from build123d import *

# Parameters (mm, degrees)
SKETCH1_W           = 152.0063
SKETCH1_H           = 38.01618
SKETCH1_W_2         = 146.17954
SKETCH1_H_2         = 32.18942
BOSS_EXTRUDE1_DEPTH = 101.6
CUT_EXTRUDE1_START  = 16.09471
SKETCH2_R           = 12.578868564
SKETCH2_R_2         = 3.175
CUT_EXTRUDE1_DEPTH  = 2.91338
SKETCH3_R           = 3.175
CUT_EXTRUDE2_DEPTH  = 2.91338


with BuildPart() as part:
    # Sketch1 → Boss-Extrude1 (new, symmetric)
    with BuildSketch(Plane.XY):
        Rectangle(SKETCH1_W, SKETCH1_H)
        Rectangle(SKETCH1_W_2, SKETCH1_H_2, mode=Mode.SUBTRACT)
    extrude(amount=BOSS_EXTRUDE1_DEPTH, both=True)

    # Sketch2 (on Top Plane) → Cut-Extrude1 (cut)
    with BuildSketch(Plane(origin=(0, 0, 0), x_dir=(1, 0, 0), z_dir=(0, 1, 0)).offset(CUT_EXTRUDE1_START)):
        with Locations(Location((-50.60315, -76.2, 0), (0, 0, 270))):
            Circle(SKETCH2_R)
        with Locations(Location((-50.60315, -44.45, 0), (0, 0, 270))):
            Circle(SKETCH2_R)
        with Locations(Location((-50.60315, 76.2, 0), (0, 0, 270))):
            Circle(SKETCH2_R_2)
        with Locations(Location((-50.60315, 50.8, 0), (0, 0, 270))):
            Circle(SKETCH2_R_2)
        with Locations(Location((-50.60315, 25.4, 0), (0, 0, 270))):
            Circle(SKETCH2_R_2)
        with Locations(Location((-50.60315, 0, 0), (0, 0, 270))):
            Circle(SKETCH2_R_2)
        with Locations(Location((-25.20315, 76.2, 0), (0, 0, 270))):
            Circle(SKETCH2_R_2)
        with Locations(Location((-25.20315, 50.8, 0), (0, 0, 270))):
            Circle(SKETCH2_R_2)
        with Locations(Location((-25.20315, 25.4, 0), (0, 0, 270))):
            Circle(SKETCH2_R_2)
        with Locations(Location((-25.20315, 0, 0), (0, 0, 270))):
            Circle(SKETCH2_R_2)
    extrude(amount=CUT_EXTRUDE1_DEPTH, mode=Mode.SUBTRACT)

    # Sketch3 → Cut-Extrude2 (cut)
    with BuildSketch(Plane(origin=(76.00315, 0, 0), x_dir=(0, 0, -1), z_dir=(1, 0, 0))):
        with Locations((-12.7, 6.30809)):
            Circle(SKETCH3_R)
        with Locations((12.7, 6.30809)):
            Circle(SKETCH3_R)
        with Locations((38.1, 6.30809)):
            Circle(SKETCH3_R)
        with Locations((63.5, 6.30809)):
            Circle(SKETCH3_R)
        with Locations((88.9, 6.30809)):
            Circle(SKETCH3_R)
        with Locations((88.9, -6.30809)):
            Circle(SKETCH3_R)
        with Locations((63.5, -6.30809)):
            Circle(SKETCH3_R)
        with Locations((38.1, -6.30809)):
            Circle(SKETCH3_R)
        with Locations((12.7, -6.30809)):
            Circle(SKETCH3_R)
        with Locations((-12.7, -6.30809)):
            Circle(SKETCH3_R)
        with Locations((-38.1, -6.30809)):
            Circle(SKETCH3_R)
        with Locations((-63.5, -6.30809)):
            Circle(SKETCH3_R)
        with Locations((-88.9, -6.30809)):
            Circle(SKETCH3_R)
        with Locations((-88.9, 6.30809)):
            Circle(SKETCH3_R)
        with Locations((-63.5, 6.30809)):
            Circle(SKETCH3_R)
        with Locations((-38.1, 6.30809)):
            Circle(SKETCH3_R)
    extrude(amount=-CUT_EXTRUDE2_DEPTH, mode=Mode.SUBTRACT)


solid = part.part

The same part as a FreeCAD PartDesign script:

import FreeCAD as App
import Part
import Sketcher
Q = App.Units.Quantity


def add_polygon(sketch, points):
    """Adds a closed chain of lines whose ends are joined by coincident constraints."""
    first, n = sketch.GeometryCount, len(points)
    for a, b in zip(points, points[1:] + points[:1]):
        sketch.addGeometry(Part.LineSegment(App.Vector(*a, 0), App.Vector(*b, 0)), False)
    for i in range(n):
        sketch.addConstraint(Sketcher.Constraint("Coincident", first + i, 2, first + (i + 1) % n, 1))

doc = App.newDocument("Part")
body = doc.addObject("PartDesign::Body", "Body")

# Sketch on XY plane
sketch1 = body.newObject("Sketcher::SketchObject", "Sketch")
sketch1.AttachmentSupport = (doc.getObject("XY_Plane"), [""])
sketch1.MapMode = "FlatFace"
add_polygon(sketch1, [(-76.00315, 19.00809), (-76.00315, -19.00809), (76.00315, -19.00809), (76.00315, 19.00809)])  # lines 0-3
add_polygon(sketch1, [(73.08977, -16.09471), (-73.08977, -16.09471), (-73.08977, 16.09471), (73.08977, 16.09471)])  # lines 4-7
sketch1.addConstraint([
    Sketcher.Constraint("Vertical", 0),
    Sketcher.Constraint("Horizontal", 1),
    Sketcher.Constraint("Vertical", 2),
    Sketcher.Constraint("Horizontal", 3),
    Sketcher.Constraint("Horizontal", 4),
    Sketcher.Constraint("Vertical", 5),
    Sketcher.Constraint("Horizontal", 6),
    Sketcher.Constraint("Vertical", 7),
    Sketcher.Constraint("Symmetric", 0, 2, 2, 2, -1, 1),
    Sketcher.Constraint("Symmetric", 4, 2, 6, 2, -1, 1),
    Sketcher.Constraint("DistanceX", 1, 1, 1, 2, Q("5.9845 in")),
    Sketcher.Constraint("DistanceX", 4, 2, 4, 1, Q("5.7551 in")),
    Sketcher.Constraint("DistanceY", 0, 2, 0, 1, Q("1.4967 in")),
    Sketcher.Constraint("DistanceY", 5, 1, 5, 2, Q("1.2673 in")),
])
pad1 = body.newObject("PartDesign::Pad", "Pad")
pad1.Profile = sketch1
pad1.Length = Q("8 in")
pad1.Midplane = True

# Sketch on XZ plane
sketch2 = body.newObject("Sketcher::SketchObject", "Sketch001")
sketch2.AttachmentSupport = (doc.getObject("XZ_Plane"), [""])
sketch2.MapMode = "FlatFace"
sketch2.AttachmentOffset = App.Placement(App.Vector(0, 0, -16.09471), App.Rotation())
sketch2.addGeometry([
    Part.Circle(App.Vector(-50.60315, 76.2, 0), App.Vector(0, 0, 1), 12.578869),  # 0
    Part.Circle(App.Vector(-50.60315, 44.45, 0), App.Vector(0, 0, 1), 12.578869),  # 1
    Part.Circle(App.Vector(-50.60315, -76.2, 0), App.Vector(0, 0, 1), 3.175),  # 2
    Part.Circle(App.Vector(-50.60315, -50.8, 0), App.Vector(0, 0, 1), 3.175),  # 3
    Part.Circle(App.Vector(-50.60315, -25.4, 0), App.Vector(0, 0, 1), 3.175),  # 4
    Part.Circle(App.Vector(-50.60315, 0, 0), App.Vector(0, 0, 1), 3.175),  # 5
    Part.Circle(App.Vector(-25.20315, -76.2, 0), App.Vector(0, 0, 1), 3.175),  # 6
    Part.Circle(App.Vector(-25.20315, -50.8, 0), App.Vector(0, 0, 1), 3.175),  # 7
    Part.Circle(App.Vector(-25.20315, -25.4, 0), App.Vector(0, 0, 1), 3.175),  # 8
    Part.Circle(App.Vector(-25.20315, 0, 0), App.Vector(0, 0, 1), 3.175),  # 9
], False)
sketch2.addConstraint([
    Sketcher.Constraint("Equal", 0, 1),
    Sketcher.Constraint("Equal", 2, 3),
    Sketcher.Constraint("Equal", 3, 4),
    Sketcher.Constraint("Equal", 4, 5),
    Sketcher.Constraint("Equal", 5, 6),
    Sketcher.Constraint("Equal", 6, 7),
    Sketcher.Constraint("Equal", 7, 8),
    Sketcher.Constraint("Equal", 8, 9),
    Sketcher.Constraint("Symmetric", 0, 3, 2, 3, -1),
    Sketcher.Constraint("PointOnObject", 5, 3, -1),
    Sketcher.Constraint("PointOnObject", 9, 3, -1),
    Sketcher.Constraint("Horizontal", 2, 3, 6, 3),
    Sketcher.Constraint("Horizontal", 3, 3, 7, 3),
    Sketcher.Constraint("Horizontal", 4, 3, 8, 3),
    Sketcher.Constraint("Vertical", 0, 3, 1, 3),
    Sketcher.Constraint("Vertical", 2, 3, 3, 3),
    Sketcher.Constraint("Vertical", 3, 3, 4, 3),
    Sketcher.Constraint("Vertical", 4, 3, 5, 3),
    Sketcher.Constraint("Vertical", 6, 3, 7, 3),
    Sketcher.Constraint("Vertical", 7, 3, 8, 3),
    Sketcher.Constraint("Vertical", 8, 3, 9, 3),
    Sketcher.Constraint("Diameter", 2, Q("0.25 in")),
    Sketcher.Constraint("DistanceY", -1, 1, 0, 3, Q("3 in")),
    Sketcher.Constraint("DistanceY", 3, 3, -1, 1, Q("2 in")),
    Sketcher.Constraint("DistanceY", 4, 3, -1, 1, Q("1 in")),
    Sketcher.Constraint("DistanceX", 2, 3, 6, 3, Q("1 in")),
    Sketcher.Constraint("DistanceY", -1, 1, 1, 3, Q("1.75 in")),
    Sketcher.Constraint("Diameter", 0, 25.157737),
    Sketcher.Constraint("DistanceX", 0, 3, -1, 1, 50.60315),
])
pocket1 = body.newObject("PartDesign::Pocket", "Pocket")
pocket1.Profile = sketch2
pocket1.Length = Q("0.1147 in")

# Sketch on YZ plane
sketch3 = body.newObject("Sketcher::SketchObject", "Sketch002")
sketch3.AttachmentSupport = (doc.getObject("YZ_Plane"), [""])
sketch3.MapMode = "FlatFace"
sketch3.AttachmentOffset = App.Placement(App.Vector(0, 0, 76.00315), App.Rotation())
sketch3.addGeometry([
    Part.Circle(App.Vector(6.30809, 12.7, 0), App.Vector(0, 0, 1), 3.175),  # 0
    Part.Circle(App.Vector(6.30809, -12.7, 0), App.Vector(0, 0, 1), 3.175),  # 1
    Part.Circle(App.Vector(6.30809, -38.1, 0), App.Vector(0, 0, 1), 3.175),  # 2
    Part.Circle(App.Vector(6.30809, -63.5, 0), App.Vector(0, 0, 1), 3.175),  # 3
    Part.Circle(App.Vector(6.30809, -88.9, 0), App.Vector(0, 0, 1), 3.175),  # 4
    Part.Circle(App.Vector(-6.30809, -88.9, 0), App.Vector(0, 0, 1), 3.175),  # 5
    Part.Circle(App.Vector(-6.30809, -63.5, 0), App.Vector(0, 0, 1), 3.175),  # 6
    Part.Circle(App.Vector(-6.30809, -38.1, 0), App.Vector(0, 0, 1), 3.175),  # 7
    Part.Circle(App.Vector(-6.30809, -12.7, 0), App.Vector(0, 0, 1), 3.175),  # 8
    Part.Circle(App.Vector(-6.30809, 12.7, 0), App.Vector(0, 0, 1), 3.175),  # 9
    Part.Circle(App.Vector(-6.30809, 38.1, 0), App.Vector(0, 0, 1), 3.175),  # 10
    Part.Circle(App.Vector(-6.30809, 63.5, 0), App.Vector(0, 0, 1), 3.175),  # 11
    Part.Circle(App.Vector(-6.30809, 88.9, 0), App.Vector(0, 0, 1), 3.175),  # 12
    Part.Circle(App.Vector(6.30809, 88.9, 0), App.Vector(0, 0, 1), 3.175),  # 13
    Part.Circle(App.Vector(6.30809, 63.5, 0), App.Vector(0, 0, 1), 3.175),  # 14
    Part.Circle(App.Vector(6.30809, 38.1, 0), App.Vector(0, 0, 1), 3.175),  # 15
], False)
sketch3.addConstraint([
    Sketcher.Constraint("Equal", 0, 1),
    Sketcher.Constraint("Equal", 1, 2),
    Sketcher.Constraint("Equal", 2, 3),
    Sketcher.Constraint("Equal", 3, 4),
    Sketcher.Constraint("Equal", 4, 5),
    Sketcher.Constraint("Equal", 5, 6),
    Sketcher.Constraint("Equal", 6, 7),
    Sketcher.Constraint("Equal", 7, 8),
    Sketcher.Constraint("Equal", 8, 9),
    Sketcher.Constraint("Equal", 9, 10),
    Sketcher.Constraint("Equal", 10, 11),
    Sketcher.Constraint("Equal", 11, 12),
    Sketcher.Constraint("Equal", 12, 13),
    Sketcher.Constraint("Equal", 13, 14),
    Sketcher.Constraint("Equal", 14, 15),
    Sketcher.Constraint("Symmetric", 0, 3, 8, 3, -1, 1),
    Sketcher.Constraint("Symmetric", 1, 3, 9, 3, -1, 1),
    Sketcher.Constraint("Symmetric", 2, 3, 10, 3, -1, 1),
    Sketcher.Constraint("Symmetric", 3, 3, 11, 3, -1, 1),
    Sketcher.Constraint("Symmetric", 4, 3, 12, 3, -1, 1),
    Sketcher.Constraint("Symmetric", 5, 3, 13, 3, -1, 1),
    Sketcher.Constraint("Symmetric", 6, 3, 14, 3, -1, 1),
    Sketcher.Constraint("Symmetric", 7, 3, 15, 3, -1, 1),
    Sketcher.Constraint("Symmetric", 4, 3, 5, 3, -2),
    Sketcher.Constraint("Symmetric", 3, 3, 6, 3, -2),
    Sketcher.Constraint("Symmetric", 2, 3, 7, 3, -2),
    Sketcher.Constraint("Symmetric", 1, 3, 8, 3, -2),
    Sketcher.Constraint("Vertical", 1, 3, 2, 3),
    Sketcher.Constraint("Vertical", 2, 3, 3, 3),
    Sketcher.Constraint("Vertical", 3, 3, 4, 3),
    Sketcher.Constraint("Diameter", 0, Q("0.25 in")),
    Sketcher.Constraint("DistanceY", 1, 3, 0, 3, Q("1 in")),
    Sketcher.Constraint("DistanceY", 2, 3, 1, 3, Q("1 in")),
    Sketcher.Constraint("DistanceY", 3, 3, 2, 3, Q("1 in")),
    Sketcher.Constraint("DistanceY", 4, 3, 3, 3, Q("1 in")),
    Sketcher.Constraint("DistanceX", 5, 3, 4, 3, Q("0.4967 in")),
])
pocket2 = body.newObject("PartDesign::Pocket", "Pocket001")
pocket2.Profile = sketch3
pocket2.Length = Q("0.1147 in")

doc.recompute()
